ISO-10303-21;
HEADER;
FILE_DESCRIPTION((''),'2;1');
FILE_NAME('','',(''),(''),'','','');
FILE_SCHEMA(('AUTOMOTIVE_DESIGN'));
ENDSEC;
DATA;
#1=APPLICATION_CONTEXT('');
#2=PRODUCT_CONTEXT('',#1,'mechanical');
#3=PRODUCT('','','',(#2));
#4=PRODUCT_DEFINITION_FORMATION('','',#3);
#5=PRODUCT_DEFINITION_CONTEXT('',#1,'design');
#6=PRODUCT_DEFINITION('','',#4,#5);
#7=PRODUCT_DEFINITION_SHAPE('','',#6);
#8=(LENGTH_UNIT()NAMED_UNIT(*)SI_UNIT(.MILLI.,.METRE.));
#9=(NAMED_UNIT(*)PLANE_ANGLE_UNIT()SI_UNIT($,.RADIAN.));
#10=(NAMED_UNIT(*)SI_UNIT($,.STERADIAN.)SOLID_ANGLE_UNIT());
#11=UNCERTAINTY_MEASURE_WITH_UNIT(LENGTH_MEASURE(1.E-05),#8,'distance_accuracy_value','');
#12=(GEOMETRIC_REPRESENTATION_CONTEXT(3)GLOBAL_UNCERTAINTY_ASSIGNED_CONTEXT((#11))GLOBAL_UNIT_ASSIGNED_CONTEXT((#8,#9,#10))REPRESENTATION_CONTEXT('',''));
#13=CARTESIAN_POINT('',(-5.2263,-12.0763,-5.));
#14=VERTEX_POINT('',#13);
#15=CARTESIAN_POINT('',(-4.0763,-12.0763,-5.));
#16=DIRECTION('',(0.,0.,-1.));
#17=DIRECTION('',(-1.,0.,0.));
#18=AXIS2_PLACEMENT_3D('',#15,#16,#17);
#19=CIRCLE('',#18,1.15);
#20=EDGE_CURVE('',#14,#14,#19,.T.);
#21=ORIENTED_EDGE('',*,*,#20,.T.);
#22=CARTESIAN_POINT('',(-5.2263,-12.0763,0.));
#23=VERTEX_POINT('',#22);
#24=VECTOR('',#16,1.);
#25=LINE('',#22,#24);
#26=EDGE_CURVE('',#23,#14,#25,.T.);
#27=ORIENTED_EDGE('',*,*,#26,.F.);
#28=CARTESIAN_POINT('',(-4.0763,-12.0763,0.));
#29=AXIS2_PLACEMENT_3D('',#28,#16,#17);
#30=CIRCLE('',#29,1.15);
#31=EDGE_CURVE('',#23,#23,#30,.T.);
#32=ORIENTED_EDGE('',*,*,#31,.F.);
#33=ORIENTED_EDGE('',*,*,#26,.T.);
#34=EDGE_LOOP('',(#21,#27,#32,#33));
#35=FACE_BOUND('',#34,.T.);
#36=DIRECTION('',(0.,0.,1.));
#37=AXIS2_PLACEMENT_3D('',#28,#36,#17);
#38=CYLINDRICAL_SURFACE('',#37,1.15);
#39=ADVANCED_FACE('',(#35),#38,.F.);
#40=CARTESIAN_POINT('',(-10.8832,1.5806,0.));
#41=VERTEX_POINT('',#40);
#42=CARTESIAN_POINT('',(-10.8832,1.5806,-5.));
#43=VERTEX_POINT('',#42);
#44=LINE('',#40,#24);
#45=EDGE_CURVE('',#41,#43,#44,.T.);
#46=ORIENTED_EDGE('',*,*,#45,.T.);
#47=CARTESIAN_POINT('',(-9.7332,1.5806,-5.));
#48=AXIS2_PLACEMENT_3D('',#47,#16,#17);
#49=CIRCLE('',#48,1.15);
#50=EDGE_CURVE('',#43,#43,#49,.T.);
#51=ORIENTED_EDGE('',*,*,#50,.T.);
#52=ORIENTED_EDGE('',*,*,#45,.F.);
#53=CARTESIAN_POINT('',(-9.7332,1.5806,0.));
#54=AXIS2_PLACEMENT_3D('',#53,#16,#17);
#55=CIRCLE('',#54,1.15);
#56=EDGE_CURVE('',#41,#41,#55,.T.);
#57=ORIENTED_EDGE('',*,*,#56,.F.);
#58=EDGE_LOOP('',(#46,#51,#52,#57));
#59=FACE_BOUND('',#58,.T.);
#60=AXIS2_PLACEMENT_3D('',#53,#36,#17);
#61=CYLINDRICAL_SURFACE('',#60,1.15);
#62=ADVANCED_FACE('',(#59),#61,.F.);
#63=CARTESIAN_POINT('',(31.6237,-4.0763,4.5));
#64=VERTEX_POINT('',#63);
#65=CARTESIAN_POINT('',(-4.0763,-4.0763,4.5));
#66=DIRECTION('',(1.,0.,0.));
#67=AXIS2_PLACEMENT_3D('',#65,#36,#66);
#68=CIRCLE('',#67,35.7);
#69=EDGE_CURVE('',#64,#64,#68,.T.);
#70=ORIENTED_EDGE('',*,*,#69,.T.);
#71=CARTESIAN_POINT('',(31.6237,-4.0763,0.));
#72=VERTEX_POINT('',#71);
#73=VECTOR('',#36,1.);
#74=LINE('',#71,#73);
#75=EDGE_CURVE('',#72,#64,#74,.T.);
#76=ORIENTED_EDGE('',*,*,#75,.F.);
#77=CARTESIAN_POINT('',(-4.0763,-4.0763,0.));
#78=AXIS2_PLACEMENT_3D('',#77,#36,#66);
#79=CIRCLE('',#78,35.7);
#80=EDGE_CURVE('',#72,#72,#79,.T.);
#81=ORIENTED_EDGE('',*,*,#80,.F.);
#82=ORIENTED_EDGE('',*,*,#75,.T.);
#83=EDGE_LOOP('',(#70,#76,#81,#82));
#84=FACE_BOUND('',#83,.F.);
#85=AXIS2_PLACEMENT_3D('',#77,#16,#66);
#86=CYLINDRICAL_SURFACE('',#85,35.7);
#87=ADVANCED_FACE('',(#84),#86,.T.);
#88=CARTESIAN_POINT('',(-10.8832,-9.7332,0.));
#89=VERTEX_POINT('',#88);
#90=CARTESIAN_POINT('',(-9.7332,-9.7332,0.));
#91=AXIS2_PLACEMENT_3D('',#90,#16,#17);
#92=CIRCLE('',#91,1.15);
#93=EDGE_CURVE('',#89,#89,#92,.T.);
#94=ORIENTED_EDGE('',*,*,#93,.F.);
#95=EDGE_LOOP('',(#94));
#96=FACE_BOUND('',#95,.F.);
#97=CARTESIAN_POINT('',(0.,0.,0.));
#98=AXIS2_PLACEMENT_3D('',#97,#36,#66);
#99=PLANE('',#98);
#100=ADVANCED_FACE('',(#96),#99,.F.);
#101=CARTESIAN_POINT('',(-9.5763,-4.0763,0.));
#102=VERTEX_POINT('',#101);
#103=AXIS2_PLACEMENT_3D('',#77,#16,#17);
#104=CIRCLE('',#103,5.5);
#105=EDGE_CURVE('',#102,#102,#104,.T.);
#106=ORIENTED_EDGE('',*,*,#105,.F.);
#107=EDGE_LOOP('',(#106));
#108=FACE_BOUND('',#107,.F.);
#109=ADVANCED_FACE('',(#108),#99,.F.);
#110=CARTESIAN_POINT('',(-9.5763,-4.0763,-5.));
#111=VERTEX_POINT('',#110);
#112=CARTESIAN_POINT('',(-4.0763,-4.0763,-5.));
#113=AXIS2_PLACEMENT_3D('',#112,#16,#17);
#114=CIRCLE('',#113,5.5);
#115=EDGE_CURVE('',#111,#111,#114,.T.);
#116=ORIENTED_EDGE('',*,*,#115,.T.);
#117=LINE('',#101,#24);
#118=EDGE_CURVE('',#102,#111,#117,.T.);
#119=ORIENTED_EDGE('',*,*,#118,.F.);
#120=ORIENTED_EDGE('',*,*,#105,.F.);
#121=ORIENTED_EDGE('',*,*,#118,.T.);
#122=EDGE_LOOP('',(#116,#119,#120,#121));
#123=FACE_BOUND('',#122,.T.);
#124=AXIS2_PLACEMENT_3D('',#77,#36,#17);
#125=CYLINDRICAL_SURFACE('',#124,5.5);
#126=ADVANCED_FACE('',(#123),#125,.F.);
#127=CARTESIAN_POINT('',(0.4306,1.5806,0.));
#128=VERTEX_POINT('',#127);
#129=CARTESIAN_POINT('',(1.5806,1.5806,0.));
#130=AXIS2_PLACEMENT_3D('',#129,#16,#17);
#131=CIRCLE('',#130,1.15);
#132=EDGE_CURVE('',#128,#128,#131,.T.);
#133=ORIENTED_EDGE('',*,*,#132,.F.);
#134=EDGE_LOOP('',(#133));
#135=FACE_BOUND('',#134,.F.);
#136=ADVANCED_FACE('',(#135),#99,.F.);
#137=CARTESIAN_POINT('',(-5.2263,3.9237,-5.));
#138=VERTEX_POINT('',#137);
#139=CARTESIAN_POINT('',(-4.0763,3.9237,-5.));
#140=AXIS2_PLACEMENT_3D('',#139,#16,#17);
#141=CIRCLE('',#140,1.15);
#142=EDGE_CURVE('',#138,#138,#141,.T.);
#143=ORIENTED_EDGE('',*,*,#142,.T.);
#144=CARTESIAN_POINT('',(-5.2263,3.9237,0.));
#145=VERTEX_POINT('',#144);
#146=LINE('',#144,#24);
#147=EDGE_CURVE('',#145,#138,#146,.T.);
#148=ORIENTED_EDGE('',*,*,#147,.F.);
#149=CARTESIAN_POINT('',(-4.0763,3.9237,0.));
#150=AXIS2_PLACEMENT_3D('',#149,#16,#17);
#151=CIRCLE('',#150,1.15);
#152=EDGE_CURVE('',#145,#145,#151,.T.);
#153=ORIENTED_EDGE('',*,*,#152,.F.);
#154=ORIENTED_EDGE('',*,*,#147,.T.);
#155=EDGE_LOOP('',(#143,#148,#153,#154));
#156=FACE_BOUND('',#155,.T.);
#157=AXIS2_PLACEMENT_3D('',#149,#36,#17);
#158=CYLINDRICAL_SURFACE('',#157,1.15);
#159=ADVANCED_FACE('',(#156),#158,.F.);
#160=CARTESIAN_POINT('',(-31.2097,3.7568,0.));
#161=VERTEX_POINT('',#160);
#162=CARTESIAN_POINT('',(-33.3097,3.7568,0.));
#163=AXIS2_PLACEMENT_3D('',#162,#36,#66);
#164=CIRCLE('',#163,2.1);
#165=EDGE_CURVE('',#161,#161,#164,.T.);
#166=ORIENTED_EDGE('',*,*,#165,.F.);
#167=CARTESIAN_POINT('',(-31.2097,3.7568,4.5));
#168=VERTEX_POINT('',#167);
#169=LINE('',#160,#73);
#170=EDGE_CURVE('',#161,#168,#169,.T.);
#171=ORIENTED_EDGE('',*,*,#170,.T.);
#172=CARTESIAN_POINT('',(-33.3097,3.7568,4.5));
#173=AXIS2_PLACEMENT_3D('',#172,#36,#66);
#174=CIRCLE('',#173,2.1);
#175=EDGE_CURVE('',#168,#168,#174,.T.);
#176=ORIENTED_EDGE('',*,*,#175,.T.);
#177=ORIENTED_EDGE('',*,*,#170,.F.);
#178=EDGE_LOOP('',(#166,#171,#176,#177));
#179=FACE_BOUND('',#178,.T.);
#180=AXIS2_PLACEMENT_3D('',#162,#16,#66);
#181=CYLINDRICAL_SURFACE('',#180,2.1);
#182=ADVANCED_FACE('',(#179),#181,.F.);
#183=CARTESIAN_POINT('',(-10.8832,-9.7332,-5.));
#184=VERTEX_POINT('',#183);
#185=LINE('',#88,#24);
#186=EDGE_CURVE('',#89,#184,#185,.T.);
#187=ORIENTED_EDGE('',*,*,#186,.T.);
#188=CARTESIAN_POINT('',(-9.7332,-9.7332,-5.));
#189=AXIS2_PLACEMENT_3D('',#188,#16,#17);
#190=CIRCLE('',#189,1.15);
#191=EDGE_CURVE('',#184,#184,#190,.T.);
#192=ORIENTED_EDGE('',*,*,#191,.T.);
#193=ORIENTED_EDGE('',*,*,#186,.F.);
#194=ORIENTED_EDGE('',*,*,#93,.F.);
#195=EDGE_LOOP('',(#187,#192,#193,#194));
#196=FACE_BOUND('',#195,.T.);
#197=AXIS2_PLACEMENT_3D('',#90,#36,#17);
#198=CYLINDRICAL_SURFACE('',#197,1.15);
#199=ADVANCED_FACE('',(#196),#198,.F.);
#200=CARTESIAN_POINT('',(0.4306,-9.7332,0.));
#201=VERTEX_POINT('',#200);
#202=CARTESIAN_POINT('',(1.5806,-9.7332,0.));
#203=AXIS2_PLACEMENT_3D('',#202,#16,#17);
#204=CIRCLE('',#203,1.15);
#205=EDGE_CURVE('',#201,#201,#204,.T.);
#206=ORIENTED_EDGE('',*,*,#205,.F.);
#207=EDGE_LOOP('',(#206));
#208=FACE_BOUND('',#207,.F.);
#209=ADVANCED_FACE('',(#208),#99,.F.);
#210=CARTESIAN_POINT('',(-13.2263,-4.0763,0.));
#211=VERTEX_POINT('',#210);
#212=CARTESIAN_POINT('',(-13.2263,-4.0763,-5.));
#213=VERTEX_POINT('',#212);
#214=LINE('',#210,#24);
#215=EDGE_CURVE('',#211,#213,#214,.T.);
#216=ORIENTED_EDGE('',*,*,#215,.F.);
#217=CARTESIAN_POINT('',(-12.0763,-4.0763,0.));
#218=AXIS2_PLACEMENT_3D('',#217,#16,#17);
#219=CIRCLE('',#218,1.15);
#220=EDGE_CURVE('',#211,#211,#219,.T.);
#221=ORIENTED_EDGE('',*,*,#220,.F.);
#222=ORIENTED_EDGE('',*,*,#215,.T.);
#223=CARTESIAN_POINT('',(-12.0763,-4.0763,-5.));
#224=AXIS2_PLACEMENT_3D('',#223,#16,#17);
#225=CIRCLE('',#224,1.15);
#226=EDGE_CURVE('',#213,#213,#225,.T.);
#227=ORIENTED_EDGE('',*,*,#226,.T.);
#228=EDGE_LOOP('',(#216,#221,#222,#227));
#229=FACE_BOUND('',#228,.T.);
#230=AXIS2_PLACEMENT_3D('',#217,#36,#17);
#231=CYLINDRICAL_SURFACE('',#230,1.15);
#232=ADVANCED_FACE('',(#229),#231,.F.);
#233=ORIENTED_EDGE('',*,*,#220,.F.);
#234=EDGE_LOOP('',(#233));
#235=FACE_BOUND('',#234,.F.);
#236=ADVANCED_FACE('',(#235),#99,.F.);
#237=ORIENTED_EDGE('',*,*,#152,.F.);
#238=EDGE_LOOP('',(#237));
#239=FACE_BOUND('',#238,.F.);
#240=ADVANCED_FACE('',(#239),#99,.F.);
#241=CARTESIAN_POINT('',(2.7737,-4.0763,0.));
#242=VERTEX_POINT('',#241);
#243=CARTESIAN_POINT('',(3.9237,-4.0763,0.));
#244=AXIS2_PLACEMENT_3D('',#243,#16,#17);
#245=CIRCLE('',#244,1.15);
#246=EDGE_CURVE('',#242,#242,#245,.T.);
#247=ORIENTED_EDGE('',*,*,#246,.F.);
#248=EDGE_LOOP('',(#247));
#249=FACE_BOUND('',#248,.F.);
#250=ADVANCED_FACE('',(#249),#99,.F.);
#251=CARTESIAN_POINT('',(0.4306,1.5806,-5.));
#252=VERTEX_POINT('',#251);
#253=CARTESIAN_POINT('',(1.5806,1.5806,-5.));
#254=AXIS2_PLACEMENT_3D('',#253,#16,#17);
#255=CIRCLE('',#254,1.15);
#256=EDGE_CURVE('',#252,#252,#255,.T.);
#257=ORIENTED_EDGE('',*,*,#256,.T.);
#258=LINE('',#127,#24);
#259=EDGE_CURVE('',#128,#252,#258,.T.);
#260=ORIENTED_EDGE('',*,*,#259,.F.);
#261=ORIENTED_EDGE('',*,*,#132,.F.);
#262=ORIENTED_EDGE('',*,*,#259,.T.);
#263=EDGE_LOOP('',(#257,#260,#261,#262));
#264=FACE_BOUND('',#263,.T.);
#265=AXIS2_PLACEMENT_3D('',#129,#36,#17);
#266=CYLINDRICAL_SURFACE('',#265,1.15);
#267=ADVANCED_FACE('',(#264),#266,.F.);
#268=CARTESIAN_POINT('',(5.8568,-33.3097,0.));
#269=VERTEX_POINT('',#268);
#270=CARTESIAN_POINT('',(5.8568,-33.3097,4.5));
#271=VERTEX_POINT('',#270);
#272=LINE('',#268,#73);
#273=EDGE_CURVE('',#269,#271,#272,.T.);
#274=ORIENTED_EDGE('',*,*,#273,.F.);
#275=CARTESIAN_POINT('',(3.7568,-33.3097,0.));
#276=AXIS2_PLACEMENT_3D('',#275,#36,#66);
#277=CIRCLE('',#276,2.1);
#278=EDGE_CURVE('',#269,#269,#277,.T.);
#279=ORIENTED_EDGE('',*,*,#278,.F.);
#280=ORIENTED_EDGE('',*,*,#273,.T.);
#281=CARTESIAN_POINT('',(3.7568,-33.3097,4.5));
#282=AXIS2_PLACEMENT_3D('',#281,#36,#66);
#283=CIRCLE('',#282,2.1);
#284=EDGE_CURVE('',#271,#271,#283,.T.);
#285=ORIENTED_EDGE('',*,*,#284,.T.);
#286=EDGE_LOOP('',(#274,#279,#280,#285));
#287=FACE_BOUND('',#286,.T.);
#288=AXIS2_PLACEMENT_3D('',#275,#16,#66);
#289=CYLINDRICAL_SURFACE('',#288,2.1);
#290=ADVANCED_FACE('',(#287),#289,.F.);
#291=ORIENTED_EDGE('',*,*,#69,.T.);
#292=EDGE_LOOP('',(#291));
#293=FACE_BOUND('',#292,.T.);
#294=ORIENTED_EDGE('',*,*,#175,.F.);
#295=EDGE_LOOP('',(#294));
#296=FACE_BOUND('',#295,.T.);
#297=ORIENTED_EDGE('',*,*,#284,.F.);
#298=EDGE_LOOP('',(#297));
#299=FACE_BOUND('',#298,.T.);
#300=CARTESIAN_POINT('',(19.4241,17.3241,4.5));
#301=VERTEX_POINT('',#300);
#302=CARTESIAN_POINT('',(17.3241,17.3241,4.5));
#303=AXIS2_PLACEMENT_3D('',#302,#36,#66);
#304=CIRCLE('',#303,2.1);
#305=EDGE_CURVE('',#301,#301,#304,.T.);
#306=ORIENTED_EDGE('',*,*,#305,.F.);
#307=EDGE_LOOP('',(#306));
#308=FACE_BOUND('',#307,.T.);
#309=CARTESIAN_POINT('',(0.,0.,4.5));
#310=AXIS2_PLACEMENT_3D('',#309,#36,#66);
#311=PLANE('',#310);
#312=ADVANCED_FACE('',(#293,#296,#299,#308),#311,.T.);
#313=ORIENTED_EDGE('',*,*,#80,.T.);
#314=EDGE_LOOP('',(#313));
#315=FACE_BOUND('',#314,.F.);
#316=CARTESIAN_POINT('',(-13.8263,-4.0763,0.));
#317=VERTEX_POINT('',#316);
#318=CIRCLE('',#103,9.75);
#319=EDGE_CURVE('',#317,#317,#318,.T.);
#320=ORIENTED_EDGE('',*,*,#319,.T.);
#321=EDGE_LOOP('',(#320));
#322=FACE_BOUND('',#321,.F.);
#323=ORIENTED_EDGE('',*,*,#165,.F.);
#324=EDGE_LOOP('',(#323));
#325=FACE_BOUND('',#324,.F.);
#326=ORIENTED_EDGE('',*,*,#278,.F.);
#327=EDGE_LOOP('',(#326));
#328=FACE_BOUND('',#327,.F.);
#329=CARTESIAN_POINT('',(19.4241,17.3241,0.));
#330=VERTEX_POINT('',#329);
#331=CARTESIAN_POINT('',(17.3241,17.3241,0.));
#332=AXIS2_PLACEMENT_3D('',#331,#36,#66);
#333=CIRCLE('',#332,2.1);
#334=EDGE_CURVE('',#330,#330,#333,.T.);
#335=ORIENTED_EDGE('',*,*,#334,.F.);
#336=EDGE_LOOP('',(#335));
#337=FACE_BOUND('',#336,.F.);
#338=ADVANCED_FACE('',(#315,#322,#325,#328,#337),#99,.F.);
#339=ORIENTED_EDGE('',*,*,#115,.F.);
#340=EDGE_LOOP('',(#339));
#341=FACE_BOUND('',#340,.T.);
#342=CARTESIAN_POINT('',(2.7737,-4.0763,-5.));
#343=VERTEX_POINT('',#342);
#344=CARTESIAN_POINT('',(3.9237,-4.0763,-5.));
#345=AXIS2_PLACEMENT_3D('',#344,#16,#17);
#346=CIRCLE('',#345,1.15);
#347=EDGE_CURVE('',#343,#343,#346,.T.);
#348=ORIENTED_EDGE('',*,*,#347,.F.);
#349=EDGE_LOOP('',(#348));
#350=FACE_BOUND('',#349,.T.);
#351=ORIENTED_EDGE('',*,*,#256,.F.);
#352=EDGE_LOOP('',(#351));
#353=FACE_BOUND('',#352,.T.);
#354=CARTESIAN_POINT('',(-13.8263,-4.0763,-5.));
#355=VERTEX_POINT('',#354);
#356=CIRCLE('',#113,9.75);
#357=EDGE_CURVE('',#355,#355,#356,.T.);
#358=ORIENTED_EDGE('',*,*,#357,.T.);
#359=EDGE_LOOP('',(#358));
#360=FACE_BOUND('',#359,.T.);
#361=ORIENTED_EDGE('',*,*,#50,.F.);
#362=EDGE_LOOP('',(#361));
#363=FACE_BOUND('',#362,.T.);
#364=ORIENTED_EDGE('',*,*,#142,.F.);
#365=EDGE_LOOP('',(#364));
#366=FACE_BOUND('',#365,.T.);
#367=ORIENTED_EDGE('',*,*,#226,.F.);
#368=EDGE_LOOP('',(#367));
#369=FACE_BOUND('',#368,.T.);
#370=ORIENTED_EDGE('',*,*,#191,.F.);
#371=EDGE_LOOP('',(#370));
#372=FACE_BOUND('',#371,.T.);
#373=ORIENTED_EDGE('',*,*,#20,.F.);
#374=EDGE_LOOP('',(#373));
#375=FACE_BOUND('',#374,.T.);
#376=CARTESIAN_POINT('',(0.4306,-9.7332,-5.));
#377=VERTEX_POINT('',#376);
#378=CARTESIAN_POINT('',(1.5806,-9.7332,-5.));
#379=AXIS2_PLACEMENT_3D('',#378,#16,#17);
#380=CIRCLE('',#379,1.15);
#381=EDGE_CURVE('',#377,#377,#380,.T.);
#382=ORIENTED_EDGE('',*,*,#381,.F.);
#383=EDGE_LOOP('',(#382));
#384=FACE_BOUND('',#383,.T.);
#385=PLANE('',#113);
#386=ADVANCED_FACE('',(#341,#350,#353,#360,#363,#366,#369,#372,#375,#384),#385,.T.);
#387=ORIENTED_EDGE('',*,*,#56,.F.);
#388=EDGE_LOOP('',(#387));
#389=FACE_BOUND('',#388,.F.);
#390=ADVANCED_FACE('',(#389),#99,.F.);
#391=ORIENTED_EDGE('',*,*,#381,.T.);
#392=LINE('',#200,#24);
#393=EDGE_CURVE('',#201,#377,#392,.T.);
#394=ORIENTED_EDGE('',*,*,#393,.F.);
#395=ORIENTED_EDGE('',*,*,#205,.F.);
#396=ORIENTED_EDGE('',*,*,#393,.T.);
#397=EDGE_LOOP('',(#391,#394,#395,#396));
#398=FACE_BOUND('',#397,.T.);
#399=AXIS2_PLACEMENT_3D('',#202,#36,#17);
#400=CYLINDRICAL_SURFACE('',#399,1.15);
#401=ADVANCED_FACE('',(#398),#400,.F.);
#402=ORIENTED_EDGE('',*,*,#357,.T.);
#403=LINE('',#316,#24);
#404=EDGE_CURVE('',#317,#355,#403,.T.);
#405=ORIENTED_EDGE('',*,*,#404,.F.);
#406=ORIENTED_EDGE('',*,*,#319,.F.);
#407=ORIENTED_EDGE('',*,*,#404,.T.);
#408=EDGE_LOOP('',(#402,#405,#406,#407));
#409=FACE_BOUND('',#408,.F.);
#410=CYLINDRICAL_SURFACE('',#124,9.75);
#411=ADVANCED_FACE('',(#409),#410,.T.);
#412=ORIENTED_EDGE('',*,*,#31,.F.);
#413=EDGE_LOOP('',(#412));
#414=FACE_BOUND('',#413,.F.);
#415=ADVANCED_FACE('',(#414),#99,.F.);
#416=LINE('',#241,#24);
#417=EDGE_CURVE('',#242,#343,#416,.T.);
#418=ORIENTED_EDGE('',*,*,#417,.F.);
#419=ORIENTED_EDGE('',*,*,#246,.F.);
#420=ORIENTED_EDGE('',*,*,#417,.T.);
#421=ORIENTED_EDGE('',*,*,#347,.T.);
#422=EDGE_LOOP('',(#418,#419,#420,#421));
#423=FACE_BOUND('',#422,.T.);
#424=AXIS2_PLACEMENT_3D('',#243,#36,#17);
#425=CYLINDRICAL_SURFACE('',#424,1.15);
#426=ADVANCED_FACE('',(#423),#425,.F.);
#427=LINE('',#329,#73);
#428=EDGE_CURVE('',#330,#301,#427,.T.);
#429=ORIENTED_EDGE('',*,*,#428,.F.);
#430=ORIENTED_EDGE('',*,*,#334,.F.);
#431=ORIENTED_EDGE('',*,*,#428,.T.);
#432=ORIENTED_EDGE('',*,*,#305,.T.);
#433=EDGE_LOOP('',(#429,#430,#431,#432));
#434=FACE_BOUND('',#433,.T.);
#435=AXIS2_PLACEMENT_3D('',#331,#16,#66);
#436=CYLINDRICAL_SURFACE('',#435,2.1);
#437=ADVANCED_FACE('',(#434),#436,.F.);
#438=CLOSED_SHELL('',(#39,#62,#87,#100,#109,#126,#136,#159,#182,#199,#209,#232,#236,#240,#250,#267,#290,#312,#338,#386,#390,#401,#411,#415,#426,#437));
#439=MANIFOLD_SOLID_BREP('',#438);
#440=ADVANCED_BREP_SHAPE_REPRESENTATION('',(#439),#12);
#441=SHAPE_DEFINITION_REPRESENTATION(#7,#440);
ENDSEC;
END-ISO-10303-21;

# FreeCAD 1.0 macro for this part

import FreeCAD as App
import Part
import Sketcher

V = App.Vector

doc = App.newDocument("Part")
body = doc.addObject("PartDesign::Body", "Body")

# Sketch on XY plane
sketch1 = body.newObject("Sketcher::SketchObject", "Sketch")
sketch1.AttachmentSupport = (doc.getObject("XY_Plane"), [""])
sketch1.MapMode = "FlatFace"
sketch1.addGeometry(Part.Circle(V(-4.1, -4.1, 0), V(0, 0, 1), 35.7), False)
sketch1.addGeometry(Part.Circle(V(3.8, -33.3, 0), V(0, 0, 1), 2.1), False)
sketch1.addGeometry(Part.Circle(V(-33.3, 3.8, 0), V(0, 0, 1), 2.1), False)
sketch1.addGeometry(Part.Circle(V(17.3, 17.3, 0), V(0, 0, 1), 2.1), False)
sketch1.addConstraint(Sketcher.Constraint("Equal", 1, 2))
sketch1.addConstraint(Sketcher.Constraint("Equal", 2, 3))
sketch1.addConstraint(Sketcher.Constraint("Diameter", 0, 71.4))
sketch1.addConstraint(Sketcher.Constraint("Diameter", 1, 4.2))
sketch1.addConstraint(Sketcher.Constraint("DistanceX", -1, 1, 3, 3, 17.324))
sketch1.addConstraint(Sketcher.Constraint("DistanceY", -1, 1, 3, 3, 17.324))
sketch1.addConstraint(Sketcher.Constraint("DistanceX", 0, 3, 1, 3, 7.833))
sketch1.addConstraint(Sketcher.Constraint("DistanceY", 0, 3, 2, 3, 7.833))
sketch1.addConstraint(Sketcher.Constraint("DistanceX", 0, 3, -1, 1, 4.0763))
sketch1.addConstraint(Sketcher.Constraint("DistanceY", 0, 3, -1, 1, 4.0763))
sketch1.addConstraint(Sketcher.Constraint("DistanceY", 1, 3, -1, 1, 33.3097))
sketch1.addConstraint(Sketcher.Constraint("DistanceX", 2, 3, -1, 1, 33.3097))
pad1 = body.newObject("PartDesign::Pad", "Pad")
pad1.Profile = sketch1
pad1.Length = 4.5

# Sketch on XY plane
sketch2 = body.newObject("Sketcher::SketchObject", "Sketch001")
sketch2.AttachmentSupport = (doc.getObject("XY_Plane"), [""])
sketch2.MapMode = "FlatFace"
sketch2.addGeometry(Part.Circle(V(-4.1, -4.1, 0), V(0, 0, 1), 9.8), False)
sketch2.addGeometry(Part.Circle(V(1.6, -9.7, 0), V(0, 0, 1), 1.1), False)
sketch2.addGeometry(Part.Circle(V(-4.1, -12.1, 0), V(0, 0, 1), 1.1), False)
sketch2.addGeometry(Part.Circle(V(-9.7, -9.7, 0), V(0, 0, 1), 1.1), False)
sketch2.addGeometry(Part.Circle(V(3.9, -4.1, 0), V(0, 0, 1), 1.1), False)
sketch2.addGeometry(Part.Circle(V(1.6, 1.6, 0), V(0, 0, 1), 1.1), False)
sketch2.addGeometry(Part.Circle(V(-4.1, -4.1, 0), V(0, 0, 1), 5.5), False)
sketch2.addGeometry(Part.Circle(V(-12.1, -4.1, 0), V(0, 0, 1), 1.1), False)
sketch2.addGeometry(Part.Circle(V(-4.1, 3.9, 0), V(0, 0, 1), 1.1), False)
sketch2.addGeometry(Part.Circle(V(-9.7, 1.6, 0), V(0, 0, 1), 1.1), False)
sketch2.addConstraint(Sketcher.Constraint("Coincident", 6, 3, 0, 3))
sketch2.addConstraint(Sketcher.Constraint("Equal", 1, 2))
sketch2.addConstraint(Sketcher.Constraint("Equal", 2, 3))
sketch2.addConstraint(Sketcher.Constraint("Equal", 3, 4))
sketch2.addConstraint(Sketcher.Constraint("Equal", 4, 5))
sketch2.addConstraint(Sketcher.Constraint("Equal", 5, 7))
sketch2.addConstraint(Sketcher.Constraint("Equal", 7, 8))
sketch2.addConstraint(Sketcher.Constraint("Equal", 8, 9))
sketch2.addConstraint(Sketcher.Constraint("Horizontal", 1, 3, 3, 3))
sketch2.addConstraint(Sketcher.Constraint("Horizontal", 0, 3, 4, 3))
sketch2.addConstraint(Sketcher.Constraint("Horizontal", 6, 3, 7, 3))
sketch2.addConstraint(Sketcher.Constraint("Horizontal", 5, 3, 9, 3))
sketch2.addConstraint(Sketcher.Constraint("Vertical", 0, 3, 2, 3))
sketch2.addConstraint(Sketcher.Constraint("Vertical", 1, 3, 5, 3))
sketch2.addConstraint(Sketcher.Constraint("Vertical", 6, 3, 8, 3))
sketch2.addConstraint(Sketcher.Constraint("Vertical", 3, 3, 9, 3))
sketch2.addConstraint(Sketcher.Constraint("Diameter", 6, 11.0))
sketch2.addConstraint(Sketcher.Constraint("Diameter", 0, 19.5))
sketch2.addConstraint(Sketcher.Constraint("Diameter", 1, 2.3))
sketch2.addConstraint(Sketcher.Constraint("DistanceY", 2, 3, 0, 3, 8.0))
sketch2.addConstraint(Sketcher.Constraint("DistanceX", 0, 3, 4, 3, 8.0))
sketch2.addConstraint(Sketcher.Constraint("DistanceX", 7, 3, 0, 3, 8.0))
sketch2.addConstraint(Sketcher.Constraint("DistanceY", 0, 3, 8, 3, 8.0))
sketch2.addConstraint(Sketcher.Constraint("DistanceX", 0, 3, 1, 3, 5.657))
sketch2.addConstraint(Sketcher.Constraint("DistanceY", 1, 3, 0, 3, 5.657))
sketch2.addConstraint(Sketcher.Constraint("DistanceX", 3, 3, 2, 3, 5.657))
sketch2.addConstraint(Sketcher.Constraint("DistanceY", 4, 3, 5, 3, 5.657))
sketch2.addConstraint(Sketcher.Constraint("DistanceX", 0, 3, -1, 1, 4.0763))
sketch2.addConstraint(Sketcher.Constraint("DistanceY", 0, 3, -1, 1, 4.0763))
pad2 = body.newObject("PartDesign::Pad", "Pad001")
pad2.Profile = sketch2
pad2.Length = 5
pad2.Reversed = True

doc.recompute()
